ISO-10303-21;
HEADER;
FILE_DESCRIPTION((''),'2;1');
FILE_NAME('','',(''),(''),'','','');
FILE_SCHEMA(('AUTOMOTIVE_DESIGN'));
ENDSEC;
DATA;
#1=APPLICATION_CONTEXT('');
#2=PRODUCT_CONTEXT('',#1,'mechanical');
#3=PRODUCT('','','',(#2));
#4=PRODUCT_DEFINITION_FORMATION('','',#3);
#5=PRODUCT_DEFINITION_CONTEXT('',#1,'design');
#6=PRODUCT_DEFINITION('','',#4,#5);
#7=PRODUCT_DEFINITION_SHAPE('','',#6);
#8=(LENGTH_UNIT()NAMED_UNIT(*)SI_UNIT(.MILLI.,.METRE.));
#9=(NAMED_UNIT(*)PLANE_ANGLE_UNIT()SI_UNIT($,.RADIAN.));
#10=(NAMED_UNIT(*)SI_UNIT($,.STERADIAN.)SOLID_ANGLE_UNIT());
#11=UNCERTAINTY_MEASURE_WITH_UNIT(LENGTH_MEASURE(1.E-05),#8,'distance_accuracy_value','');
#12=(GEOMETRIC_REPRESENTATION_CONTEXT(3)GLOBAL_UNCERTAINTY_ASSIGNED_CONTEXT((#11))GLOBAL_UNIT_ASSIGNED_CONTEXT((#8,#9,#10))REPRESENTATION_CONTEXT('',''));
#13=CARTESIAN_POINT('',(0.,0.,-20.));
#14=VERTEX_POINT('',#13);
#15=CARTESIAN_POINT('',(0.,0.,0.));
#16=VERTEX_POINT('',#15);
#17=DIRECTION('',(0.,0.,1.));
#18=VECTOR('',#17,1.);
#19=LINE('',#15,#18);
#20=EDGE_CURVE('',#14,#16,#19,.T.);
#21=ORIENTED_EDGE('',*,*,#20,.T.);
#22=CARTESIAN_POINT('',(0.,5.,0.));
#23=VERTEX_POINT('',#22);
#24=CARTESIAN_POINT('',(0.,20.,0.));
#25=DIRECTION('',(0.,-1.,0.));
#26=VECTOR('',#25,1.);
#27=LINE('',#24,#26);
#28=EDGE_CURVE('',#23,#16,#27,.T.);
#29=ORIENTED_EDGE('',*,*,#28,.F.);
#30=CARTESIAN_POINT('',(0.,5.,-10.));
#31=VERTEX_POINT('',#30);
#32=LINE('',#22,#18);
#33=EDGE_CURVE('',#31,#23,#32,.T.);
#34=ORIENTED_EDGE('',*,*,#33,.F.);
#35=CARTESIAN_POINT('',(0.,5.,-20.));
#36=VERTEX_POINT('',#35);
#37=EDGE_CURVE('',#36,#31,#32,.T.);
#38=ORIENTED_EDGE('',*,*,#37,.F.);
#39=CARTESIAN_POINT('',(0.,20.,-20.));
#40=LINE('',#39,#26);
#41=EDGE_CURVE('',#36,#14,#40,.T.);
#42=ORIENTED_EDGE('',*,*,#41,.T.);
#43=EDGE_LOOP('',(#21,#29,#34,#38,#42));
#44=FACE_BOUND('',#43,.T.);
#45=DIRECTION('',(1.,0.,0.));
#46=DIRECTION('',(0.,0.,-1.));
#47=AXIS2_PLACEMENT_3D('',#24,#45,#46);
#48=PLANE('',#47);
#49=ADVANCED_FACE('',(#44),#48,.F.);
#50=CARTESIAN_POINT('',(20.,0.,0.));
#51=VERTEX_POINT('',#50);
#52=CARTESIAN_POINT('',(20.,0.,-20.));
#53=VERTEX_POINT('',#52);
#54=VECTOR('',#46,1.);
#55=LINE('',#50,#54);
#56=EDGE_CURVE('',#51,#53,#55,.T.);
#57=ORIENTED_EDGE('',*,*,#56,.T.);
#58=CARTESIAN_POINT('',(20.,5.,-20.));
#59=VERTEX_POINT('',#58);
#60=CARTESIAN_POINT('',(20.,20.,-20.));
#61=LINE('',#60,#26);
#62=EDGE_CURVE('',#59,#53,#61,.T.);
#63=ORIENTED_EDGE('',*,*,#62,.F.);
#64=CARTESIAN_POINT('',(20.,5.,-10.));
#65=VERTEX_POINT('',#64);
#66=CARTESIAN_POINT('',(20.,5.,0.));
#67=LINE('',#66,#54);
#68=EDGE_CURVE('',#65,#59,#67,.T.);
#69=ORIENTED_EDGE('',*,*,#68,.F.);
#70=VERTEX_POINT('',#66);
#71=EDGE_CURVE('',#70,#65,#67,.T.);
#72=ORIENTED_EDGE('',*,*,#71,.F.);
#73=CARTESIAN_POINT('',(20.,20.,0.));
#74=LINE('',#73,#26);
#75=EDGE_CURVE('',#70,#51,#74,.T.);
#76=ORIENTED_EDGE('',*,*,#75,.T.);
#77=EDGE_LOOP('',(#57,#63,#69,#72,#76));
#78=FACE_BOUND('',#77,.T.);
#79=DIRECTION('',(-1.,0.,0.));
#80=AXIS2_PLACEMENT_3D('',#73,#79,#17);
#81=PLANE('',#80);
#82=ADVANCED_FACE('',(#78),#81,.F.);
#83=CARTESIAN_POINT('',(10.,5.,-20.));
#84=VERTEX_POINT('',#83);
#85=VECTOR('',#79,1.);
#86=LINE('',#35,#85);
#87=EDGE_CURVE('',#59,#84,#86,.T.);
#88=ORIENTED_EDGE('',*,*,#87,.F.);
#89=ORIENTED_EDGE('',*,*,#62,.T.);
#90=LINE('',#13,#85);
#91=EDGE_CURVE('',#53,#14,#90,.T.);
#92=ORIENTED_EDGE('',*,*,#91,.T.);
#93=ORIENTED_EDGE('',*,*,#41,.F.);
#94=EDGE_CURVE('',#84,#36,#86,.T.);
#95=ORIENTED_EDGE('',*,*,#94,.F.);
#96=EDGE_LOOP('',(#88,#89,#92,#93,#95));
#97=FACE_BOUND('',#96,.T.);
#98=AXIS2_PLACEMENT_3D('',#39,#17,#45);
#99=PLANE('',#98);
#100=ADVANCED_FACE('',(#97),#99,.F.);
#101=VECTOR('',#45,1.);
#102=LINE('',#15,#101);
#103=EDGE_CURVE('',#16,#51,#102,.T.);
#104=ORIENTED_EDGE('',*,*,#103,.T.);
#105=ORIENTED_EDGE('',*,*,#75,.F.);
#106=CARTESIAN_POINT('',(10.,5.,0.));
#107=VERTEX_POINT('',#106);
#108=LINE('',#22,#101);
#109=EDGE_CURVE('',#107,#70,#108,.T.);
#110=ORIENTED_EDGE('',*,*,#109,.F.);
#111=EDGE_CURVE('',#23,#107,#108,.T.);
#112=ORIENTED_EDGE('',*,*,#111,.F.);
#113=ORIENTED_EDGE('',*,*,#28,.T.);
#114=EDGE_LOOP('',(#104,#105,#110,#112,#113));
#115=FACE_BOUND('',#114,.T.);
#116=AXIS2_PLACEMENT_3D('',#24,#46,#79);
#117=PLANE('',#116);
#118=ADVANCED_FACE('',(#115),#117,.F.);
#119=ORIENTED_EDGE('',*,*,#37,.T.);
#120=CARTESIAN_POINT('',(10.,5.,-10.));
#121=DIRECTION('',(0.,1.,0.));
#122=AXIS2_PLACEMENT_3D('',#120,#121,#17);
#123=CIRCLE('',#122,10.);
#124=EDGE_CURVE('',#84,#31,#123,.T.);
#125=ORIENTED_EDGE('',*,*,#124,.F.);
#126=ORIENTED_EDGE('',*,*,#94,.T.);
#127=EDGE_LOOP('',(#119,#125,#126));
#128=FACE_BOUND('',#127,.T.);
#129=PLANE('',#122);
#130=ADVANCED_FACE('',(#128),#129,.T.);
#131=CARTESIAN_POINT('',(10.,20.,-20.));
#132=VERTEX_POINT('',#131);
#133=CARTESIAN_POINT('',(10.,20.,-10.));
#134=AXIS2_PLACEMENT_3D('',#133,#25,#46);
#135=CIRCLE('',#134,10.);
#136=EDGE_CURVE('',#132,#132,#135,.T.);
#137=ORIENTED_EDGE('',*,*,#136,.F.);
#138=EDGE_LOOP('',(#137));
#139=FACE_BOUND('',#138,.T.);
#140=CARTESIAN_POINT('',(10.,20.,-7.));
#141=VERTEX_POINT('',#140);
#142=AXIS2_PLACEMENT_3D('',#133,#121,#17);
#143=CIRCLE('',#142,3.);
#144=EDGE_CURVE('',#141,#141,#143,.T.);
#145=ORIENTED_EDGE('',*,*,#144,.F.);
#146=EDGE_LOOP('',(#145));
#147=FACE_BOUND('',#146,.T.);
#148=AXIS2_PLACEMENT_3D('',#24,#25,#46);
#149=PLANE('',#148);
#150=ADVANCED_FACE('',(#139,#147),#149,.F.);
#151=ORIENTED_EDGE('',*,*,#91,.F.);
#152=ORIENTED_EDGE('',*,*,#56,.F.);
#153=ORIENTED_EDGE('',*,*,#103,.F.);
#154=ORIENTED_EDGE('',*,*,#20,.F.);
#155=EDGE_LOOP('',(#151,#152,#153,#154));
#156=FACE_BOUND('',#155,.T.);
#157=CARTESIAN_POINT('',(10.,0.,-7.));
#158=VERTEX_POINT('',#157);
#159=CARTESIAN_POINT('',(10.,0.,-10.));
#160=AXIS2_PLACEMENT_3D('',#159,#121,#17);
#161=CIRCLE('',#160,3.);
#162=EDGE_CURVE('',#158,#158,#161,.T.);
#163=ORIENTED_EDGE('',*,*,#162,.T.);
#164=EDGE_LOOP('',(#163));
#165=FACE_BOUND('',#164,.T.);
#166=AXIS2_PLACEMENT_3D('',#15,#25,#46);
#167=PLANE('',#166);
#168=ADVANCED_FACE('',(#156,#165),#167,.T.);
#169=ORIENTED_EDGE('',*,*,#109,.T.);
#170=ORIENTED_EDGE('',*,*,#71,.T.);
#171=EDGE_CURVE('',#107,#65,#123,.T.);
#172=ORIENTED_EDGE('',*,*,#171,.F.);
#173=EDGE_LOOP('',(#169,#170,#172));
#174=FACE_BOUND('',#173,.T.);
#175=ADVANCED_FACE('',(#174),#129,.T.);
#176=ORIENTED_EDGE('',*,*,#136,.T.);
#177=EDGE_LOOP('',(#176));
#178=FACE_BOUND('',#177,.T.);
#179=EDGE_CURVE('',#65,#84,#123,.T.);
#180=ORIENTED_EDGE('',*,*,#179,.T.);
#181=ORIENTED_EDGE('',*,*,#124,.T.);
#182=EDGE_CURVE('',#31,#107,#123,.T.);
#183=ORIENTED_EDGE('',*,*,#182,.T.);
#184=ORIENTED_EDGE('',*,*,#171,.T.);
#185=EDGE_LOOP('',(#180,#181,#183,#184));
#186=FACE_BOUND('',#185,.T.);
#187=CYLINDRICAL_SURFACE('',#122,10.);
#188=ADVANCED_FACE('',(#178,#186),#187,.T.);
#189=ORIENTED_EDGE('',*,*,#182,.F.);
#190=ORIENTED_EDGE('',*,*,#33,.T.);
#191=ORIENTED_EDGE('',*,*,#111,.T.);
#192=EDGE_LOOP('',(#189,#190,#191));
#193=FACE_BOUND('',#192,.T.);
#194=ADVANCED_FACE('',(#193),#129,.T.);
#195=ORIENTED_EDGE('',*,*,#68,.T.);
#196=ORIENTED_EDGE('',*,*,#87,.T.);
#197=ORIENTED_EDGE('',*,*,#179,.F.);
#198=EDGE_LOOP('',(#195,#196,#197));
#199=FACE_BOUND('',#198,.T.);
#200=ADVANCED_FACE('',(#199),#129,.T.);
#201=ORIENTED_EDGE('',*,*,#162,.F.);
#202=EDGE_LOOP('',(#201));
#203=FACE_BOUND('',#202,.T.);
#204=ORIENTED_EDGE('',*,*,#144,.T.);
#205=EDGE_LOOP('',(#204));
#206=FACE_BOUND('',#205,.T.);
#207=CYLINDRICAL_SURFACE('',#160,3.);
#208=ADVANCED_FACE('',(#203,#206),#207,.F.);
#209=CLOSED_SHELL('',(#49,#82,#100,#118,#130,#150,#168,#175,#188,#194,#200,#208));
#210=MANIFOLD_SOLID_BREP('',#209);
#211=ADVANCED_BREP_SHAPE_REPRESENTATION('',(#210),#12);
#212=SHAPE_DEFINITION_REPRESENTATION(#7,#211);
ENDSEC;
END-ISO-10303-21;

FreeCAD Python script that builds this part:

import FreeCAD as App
import Part
import Sketcher
from FreeCAD import Vector
Q = App.Units.Quantity

doc = App.newDocument("Part")
body = doc.addObject("PartDesign::Body", "Body")

# Sketch on XZ plane
sketch1 = body.newObject("Sketcher::SketchObject", "Sketch")
sketch1.AttachmentSupport = (doc.getObject("XZ_Plane"), [""])
sketch1.MapMode = "FlatFace"
sketch1.addGeometry([
    Part.LineSegment(Vector(0, -20, 0), Vector(0, 0, 0)),
    Part.LineSegment(Vector(0, 0, 0), Vector(20, 0, 0)),
    Part.LineSegment(Vector(20, 0, 0), Vector(20, -20, 0)),
    Part.LineSegment(Vector(20, -20, 0), Vector(0, -20, 0)),
], False)
sketch1.addConstraint([
    Sketcher.Constraint("Coincident", 0, 2, 1, 1),
    Sketcher.Constraint("Coincident", 1, 2, 2, 1),
    Sketcher.Constraint("Coincident", 2, 2, 3, 1),
    Sketcher.Constraint("Coincident", 3, 2, 0, 1),
    Sketcher.Constraint("Vertical", 0),
    Sketcher.Constraint("Horizontal", 1),
    Sketcher.Constraint("Vertical", 2),
    Sketcher.Constraint("Horizontal", 3),
    Sketcher.Constraint("Coincident", 0, 2, -1, 1),
    Sketcher.Constraint("Equal", 3, 0),
    Sketcher.Constraint("DistanceX", 1, 1, 1, 2, Q("20 mm")),
])
pad1 = body.newObject("PartDesign::Pad", "Pad")
pad1.Profile = sketch1
pad1.Length = 20
pad1.Reversed = True

# Sketch on XZ plane
sketch2 = body.newObject("Sketcher::SketchObject", "Sketch001")
sketch2.AttachmentSupport = (doc.getObject("XZ_Plane"), [""])
sketch2.MapMode = "FlatFace"
sketch2.AttachmentOffset = App.Placement(Vector(0, 0, -20), App.Rotation())
sketch2.addGeometry([
    Part.LineSegment(Vector(-4, -24, 0), Vector(-4, 4, 0)),  # 0
    Part.LineSegment(Vector(-4, 4, 0), Vector(24, 4, 0)),  # 1
    Part.LineSegment(Vector(24, 4, 0), Vector(24, -24, 0)),  # 2
    Part.LineSegment(Vector(24, -24, 0), Vector(-4, -24, 0)),  # 3
    Part.Circle(Vector(10, -10, 0), Vector(0, 0, 1), 10),  # 4
], False)
sketch2.addConstraint([
    Sketcher.Constraint("Coincident", 0, 2, 1, 1),
    Sketcher.Constraint("Coincident", 1, 2, 2, 1),
    Sketcher.Constraint("Coincident", 2, 2, 3, 1),
    Sketcher.Constraint("Coincident", 3, 2, 0, 1),
    Sketcher.Constraint("Vertical", 0),
    Sketcher.Constraint("Horizontal", 1),
    Sketcher.Constraint("Vertical", 2),
    Sketcher.Constraint("Horizontal", 3),
    Sketcher.Constraint("Equal", 3, 0),
    Sketcher.Constraint("Diameter", 4, Q("20 mm")),
    Sketcher.Constraint("DistanceX", -1, 1, 4, 3, Q("10 mm")),
    Sketcher.Constraint("DistanceY", 4, 3, -1, 1, Q("10 mm")),
    Sketcher.Constraint("DistanceX", 1, 1, 1, 2, Q("28.928 mm")),
    Sketcher.Constraint("DistanceX", 0, 2, -1, 1, Q("4.464 mm")),
    Sketcher.Constraint("DistanceY", -1, 1, 0, 2, Q("4.464 mm")),
])
pocket1 = body.newObject("PartDesign::Pocket", "Pocket")
pocket1.Profile = sketch2
pocket1.Length = 15
pocket1.Reversed = True

# Sketch on XZ plane
sketch3 = body.newObject("Sketcher::SketchObject", "Sketch002")
sketch3.AttachmentSupport = (doc.getObject("XZ_Plane"), [""])
sketch3.MapMode = "FlatFace"
sketch3.AttachmentOffset = App.Placement(Vector(0, 0, -20), App.Rotation())
sketch3.addGeometry(Part.Circle(Vector(10, -10, 0), Vector(0, 0, 1), 3), False)
sketch3.addConstraint([
    Sketcher.Constraint("Diameter", 0, Q("6 mm")),
    Sketcher.Constraint("DistanceX", -1, 1, 0, 3, Q("10 mm")),
    Sketcher.Constraint("DistanceY", 0, 3, -1, 1, Q("10 mm")),
])
pocket2 = body.newObject("PartDesign::Pocket", "Pocket001")
pocket2.Profile = sketch3
pocket2.Type = "ThroughAll"
pocket2.Reversed = True

doc.recompute()
